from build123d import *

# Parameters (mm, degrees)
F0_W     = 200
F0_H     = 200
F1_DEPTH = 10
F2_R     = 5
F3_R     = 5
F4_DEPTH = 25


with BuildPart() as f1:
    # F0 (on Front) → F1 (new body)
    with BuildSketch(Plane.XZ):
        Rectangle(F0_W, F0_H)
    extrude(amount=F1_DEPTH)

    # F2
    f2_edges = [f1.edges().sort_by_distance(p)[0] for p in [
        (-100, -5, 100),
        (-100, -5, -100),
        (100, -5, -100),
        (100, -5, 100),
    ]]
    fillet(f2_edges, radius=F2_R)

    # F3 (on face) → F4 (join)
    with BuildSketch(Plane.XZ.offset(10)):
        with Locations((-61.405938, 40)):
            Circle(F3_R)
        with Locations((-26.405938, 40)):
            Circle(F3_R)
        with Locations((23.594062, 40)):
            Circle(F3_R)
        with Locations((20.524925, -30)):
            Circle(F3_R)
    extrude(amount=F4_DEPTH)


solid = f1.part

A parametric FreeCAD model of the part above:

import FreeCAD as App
import Part
import Sketcher

V = App.Vector
Q = App.Units.Quantity


def edges_at(feature, points):
    """Names of the edges that pass closest to the given points."""
    edges = feature.Shape.Edges
    near = lambda p: min(range(len(edges)), key=lambda i: edges[i].distToShape(Part.Vertex(*p))[0])
    return sorted({f"Edge{near(p) + 1}" for p in points})


def add_polygon(sketch, points):
    """Adds a closed chain of lines whose ends are joined by coincident constraints."""
    first, n = sketch.GeometryCount, len(points)
    for a, b in zip(points, points[1:] + points[:1]):
        sketch.addGeometry(Part.LineSegment(App.Vector(*a, 0), App.Vector(*b, 0)), False)
    for i in range(n):
        sketch.addConstraint(Sketcher.Constraint("Coincident", first + i, 2, first + (i + 1) % n, 1))

doc = App.newDocument("Part")
body = doc.addObject("PartDesign::Body", "Body")

# Sketch on XZ plane
sketch1 = body.newObject("Sketcher::SketchObject", "Sketch")
sketch1.AttachmentSupport = (doc.getObject("XZ_Plane"), [""])
sketch1.MapMode = "FlatFace"
add_polygon(sketch1, [(-100, 100), (-100, -100), (100, -100), (100, 100)])  # lines 0-3
sketch1.addConstraint([
    Sketcher.Constraint("Vertical", 0),
    Sketcher.Constraint("Horizontal", 1),
    Sketcher.Constraint("Vertical", 2),
    Sketcher.Constraint("Horizontal", 3),
    Sketcher.Constraint("Symmetric", 0, 2, 2, 2, -1, 1),
    Sketcher.Constraint("Equal", 3, 0),
    Sketcher.Constraint("DistanceX", 1, 1, 1, 2, Q("200 mm")),
])
pad1 = body.newObject("PartDesign::Pad", "Pad")
pad1.Profile = sketch1
pad1.Length = 10
doc.recompute()

fillet = body.newObject("PartDesign::Fillet", "Fillet")
fillet.Base = (pad1, edges_at(pad1, [
    (-100, -5, 100),
    (-100, -5, -100),
    (100, -5, -100),
    (100, -5, 100),
]))
fillet.Radius = 5

# Sketch on XZ plane
sketch2 = body.newObject("Sketcher::SketchObject", "Sketch001")
sketch2.AttachmentSupport = (doc.getObject("XZ_Plane"), [""])
sketch2.MapMode = "FlatFace"
sketch2.AttachmentOffset = App.Placement(V(0, 0, 10), App.Rotation())
sketch2.addGeometry([
    Part.Circle(V(-61, 40, 0), V(0, 0, 1), 5),
    Part.Circle(V(-26, 40, 0), V(0, 0, 1), 5),
    Part.Circle(V(24, 40, 0), V(0, 0, 1), 5),
    Part.Circle(V(21, -30, 0), V(0, 0, 1), 5),
], False)
sketch2.addConstraint([
    Sketcher.Constraint("Equal", 0, 1),
    Sketcher.Constraint("Equal", 1, 2),
    Sketcher.Constraint("Equal", 2, 3),
    Sketcher.Constraint("Horizontal", 0, 3, 1, 3),
    Sketcher.Constraint("Horizontal", 1, 3, 2, 3),
    Sketcher.Constraint("Diameter", 0, Q("10 mm")),
    Sketcher.Constraint("DistanceY", -1, 1, 0, 3, Q("40 mm")),
    Sketcher.Constraint("DistanceY", 3, 3, -1, 1, Q("30 mm")),
    Sketcher.Constraint("DistanceX", 0, 3, 1, 3, Q("35 mm")),
    Sketcher.Constraint("DistanceX", 1, 3, 2, 3, Q("50 mm")),
    Sketcher.Constraint("DistanceX", 0, 3, -1, 1, Q("61.405938 mm")),
    Sketcher.Constraint("DistanceX", -1, 1, 3, 3, Q("20.524925 mm")),
])
pad2 = body.newObject("PartDesign::Pad", "Pad001")
pad2.Profile = sketch2
pad2.Length = 25

doc.recompute()
